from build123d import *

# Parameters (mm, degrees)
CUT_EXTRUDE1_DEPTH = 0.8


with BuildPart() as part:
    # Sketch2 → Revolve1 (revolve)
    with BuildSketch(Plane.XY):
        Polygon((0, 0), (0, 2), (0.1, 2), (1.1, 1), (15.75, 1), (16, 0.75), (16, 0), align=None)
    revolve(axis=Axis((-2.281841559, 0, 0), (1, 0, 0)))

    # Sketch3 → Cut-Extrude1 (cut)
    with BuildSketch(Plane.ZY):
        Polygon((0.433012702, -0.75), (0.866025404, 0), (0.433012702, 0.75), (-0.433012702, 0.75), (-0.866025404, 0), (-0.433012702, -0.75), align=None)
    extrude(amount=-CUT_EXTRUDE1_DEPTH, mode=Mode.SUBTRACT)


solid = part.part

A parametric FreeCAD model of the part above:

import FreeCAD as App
import Part
import Sketcher
Q = App.Units.Quantity

doc = App.newDocument("Part")
body = doc.addObject("PartDesign::Body", "Body")

# Sketch on XY plane
sketch1 = body.newObject("Sketcher::SketchObject", "Sketch")
sketch1.AttachmentSupport = (doc.getObject("XY_Plane"), [""])
sketch1.MapMode = "FlatFace"
sketch1.addGeometry([
    Part.LineSegment(App.Vector(0, 2, 0), App.Vector(0, 0, 0)),  # 0
    Part.LineSegment(App.Vector(0, 0, 0), App.Vector(16, 0, 0)),  # 1
    Part.LineSegment(App.Vector(16, 0, 0), App.Vector(16, 0.75, 0)),  # 2
    Part.LineSegment(App.Vector(16, 0.75, 0), App.Vector(15.75, 1, 0)),  # 3
    Part.LineSegment(App.Vector(15.75, 1, 0), App.Vector(1.1, 1, 0)),  # 4
    Part.LineSegment(App.Vector(1.1, 1, 0), App.Vector(0.1, 2, 0)),  # 5
    Part.LineSegment(App.Vector(0.1, 2, 0), App.Vector(0, 2, 0)),  # 6
], False)
sketch1.addConstraint([
    Sketcher.Constraint("Coincident", 0, 2, 1, 1),
    Sketcher.Constraint("Coincident", 1, 2, 2, 1),
    Sketcher.Constraint("Coincident", 2, 2, 3, 1),
    Sketcher.Constraint("Coincident", 3, 2, 4, 1),
    Sketcher.Constraint("Coincident", 4, 2, 5, 1),
    Sketcher.Constraint("Coincident", 5, 2, 6, 1),
    Sketcher.Constraint("Coincident", 6, 2, 0, 1),
    Sketcher.Constraint("Vertical", 0),
    Sketcher.Constraint("Horizontal", 1),
    Sketcher.Constraint("Vertical", 2),
    Sketcher.Constraint("Horizontal", 4),
    Sketcher.Constraint("Horizontal", 6),
    Sketcher.Constraint("Coincident", 0, 2, -1, 1),
    Sketcher.Constraint("Parallel", 3, 5),
    Sketcher.Constraint("DistanceX", 1, 1, 1, 2, Q("16 mm")),
    Sketcher.Constraint("DistanceY", 0, 2, 0, 1, Q("2 mm")),
    Sketcher.Constraint("Angle", 3, Q("135 deg")),
    Sketcher.Constraint("DistanceX", 6, 2, 6, 1, Q("0.1 mm")),
    Sketcher.Constraint("DistanceY", -1, 1, 3, 2, Q("1 mm")),
    Sketcher.Constraint("DistanceX", 4, 2, 4, 1, Q("14.65 mm")),
])
revolution = body.newObject("PartDesign::Revolution", "Revolution")
revolution.Profile = sketch1
revolution.ReferenceAxis = (sketch1, ["H_Axis"])
revolution.Angle = 360

# Sketch on YZ plane
sketch2 = body.newObject("Sketcher::SketchObject", "Sketch001")
sketch2.AttachmentSupport = (doc.getObject("YZ_Plane"), [""])
sketch2.MapMode = "FlatFace"
sketch2.addGeometry([
    Part.LineSegment(App.Vector(-0.8, 0.4, 0), App.Vector(0, 0.9, 0)),  # 0
    Part.LineSegment(App.Vector(0, 0.9, 0), App.Vector(0.8, 0.4, 0)),  # 1
    Part.LineSegment(App.Vector(0.8, 0.4, 0), App.Vector(0.8, -0.4, 0)),  # 2
    Part.LineSegment(App.Vector(0.8, -0.4, 0), App.Vector(0, -0.9, 0)),  # 3
    Part.LineSegment(App.Vector(0, -0.9, 0), App.Vector(-0.8, -0.4, 0)),  # 4
    Part.LineSegment(App.Vector(-0.8, -0.4, 0), App.Vector(-0.8, 0.4, 0)),  # 5
], False)
sketch2.addConstraint([
    Sketcher.Constraint("Coincident", 0, 2, 1, 1),
    Sketcher.Constraint("Coincident", 1, 2, 2, 1),
    Sketcher.Constraint("Coincident", 2, 2, 3, 1),
    Sketcher.Constraint("Coincident", 3, 2, 4, 1),
    Sketcher.Constraint("Coincident", 4, 2, 5, 1),
    Sketcher.Constraint("Coincident", 5, 2, 0, 1),
    Sketcher.Constraint("Vertical", 2),
    Sketcher.Constraint("Vertical", 5),
    Sketcher.Constraint("Symmetric", 0, 2, 3, 2, -1, 1),
    Sketcher.Constraint("Symmetric", 1, 2, 4, 2, -1, 1),
    Sketcher.Constraint("PointOnObject", 0, 2, -2),
    Sketcher.Constraint("Parallel", 0, 3),
    Sketcher.Constraint("Horizontal", 2, 2, 4, 2),
    Sketcher.Constraint("Angle", 0, Q("30 deg")),
    Sketcher.Constraint("DistanceX", 4, 2, 2, 2, Q("1.5 mm")),
    Sketcher.Constraint("DistanceY", 2, 2, 2, 1, Q("0.866025 mm")),
])
pocket1 = body.newObject("PartDesign::Pocket", "Pocket")
pocket1.Profile = sketch2
pocket1.Length = 0.8
pocket1.Reversed = True

doc.recompute()
